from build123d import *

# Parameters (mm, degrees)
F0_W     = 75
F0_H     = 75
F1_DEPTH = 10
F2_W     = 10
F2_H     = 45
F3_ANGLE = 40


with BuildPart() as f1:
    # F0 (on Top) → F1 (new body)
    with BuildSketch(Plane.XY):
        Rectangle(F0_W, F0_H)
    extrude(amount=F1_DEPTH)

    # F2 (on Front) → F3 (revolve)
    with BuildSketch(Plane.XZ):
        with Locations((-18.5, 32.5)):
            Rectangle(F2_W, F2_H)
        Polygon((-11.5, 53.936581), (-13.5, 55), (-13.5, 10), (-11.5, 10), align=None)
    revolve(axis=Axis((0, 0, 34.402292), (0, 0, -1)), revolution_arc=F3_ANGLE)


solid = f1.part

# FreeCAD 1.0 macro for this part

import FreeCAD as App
import Part
import Sketcher
Q = App.Units.Quantity

doc = App.newDocument("Part")
params = doc.addObject("Spreadsheet::Sheet", "Params")
for row, (alias, value) in enumerate([
    ("sketch1_width", "75 mm"),
    ("pad1_length", "10 mm"),
    ("sketch2_width", "12 mm"),
    ("sketch2_width2", "10 mm"),
    ("sketch2_height", "45 mm"),
    ("revolution_angle", "40 deg"),
], start=1):
    params.set(f"A{row}", alias)
    params.set(f"B{row}", "=" + value)
    params.setAlias(f"B{row}", alias)

body = doc.addObject("PartDesign::Body", "Body")

# Sketch on XY plane
sketch1 = body.newObject("Sketcher::SketchObject", "Sketch")
sketch1.AttachmentSupport = (doc.getObject("XY_Plane"), [""])
sketch1.MapMode = "FlatFace"
sketch1.addGeometry([
    Part.LineSegment(App.Vector(-37.5, 37.5, 0), App.Vector(-37.5, -37.5, 0)),
    Part.LineSegment(App.Vector(-37.5, -37.5, 0), App.Vector(37.5, -37.5, 0)),
    Part.LineSegment(App.Vector(37.5, -37.5, 0), App.Vector(37.5, 37.5, 0)),
    Part.LineSegment(App.Vector(37.5, 37.5, 0), App.Vector(-37.5, 37.5, 0)),
], False)
sketch1.addConstraint([
    Sketcher.Constraint("Coincident", 0, 2, 1, 1),
    Sketcher.Constraint("Coincident", 1, 2, 2, 1),
    Sketcher.Constraint("Coincident", 2, 2, 3, 1),
    Sketcher.Constraint("Coincident", 3, 2, 0, 1),
    Sketcher.Constraint("Vertical", 0),
    Sketcher.Constraint("Horizontal", 1),
    Sketcher.Constraint("Vertical", 2),
    Sketcher.Constraint("Horizontal", 3),
    Sketcher.Constraint("Symmetric", 0, 2, 2, 2, -1, 1),
    Sketcher.Constraint("Equal", 3, 0),
    Sketcher.Constraint("DistanceX", 1, 1, 1, 2, Q("75 mm")),
])
sketch1.setExpression("Constraints[10]", "Params.sketch1_width")
pad1 = body.newObject("PartDesign::Pad", "Pad")
pad1.Profile = sketch1
pad1.setExpression("Length", "Params.pad1_length")

# Sketch on XZ plane
sketch2 = body.newObject("Sketcher::SketchObject", "Sketch001")
sketch2.AttachmentSupport = (doc.getObject("XZ_Plane"), [""])
sketch2.MapMode = "FlatFace"
sketch2.addGeometry([
    Part.LineSegment(App.Vector(-23.5, 55, 0), App.Vector(-23.5, 10, 0)),  # 0
    Part.LineSegment(App.Vector(-23.5, 10, 0), App.Vector(-11.5, 10, 0)),  # 1
    Part.LineSegment(App.Vector(-11.5, 10, 0), App.Vector(-11.5, 53.936581, 0)),  # 2
    Part.LineSegment(App.Vector(-11.5, 53.936581, 0), App.Vector(-13.5, 55, 0)),  # 3
    Part.LineSegment(App.Vector(-13.5, 55, 0), App.Vector(-23.5, 55, 0)),  # 4
], False)
sketch2.addConstraint([
    Sketcher.Constraint("Coincident", 0, 2, 1, 1),
    Sketcher.Constraint("Coincident", 1, 2, 2, 1),
    Sketcher.Constraint("Coincident", 2, 2, 3, 1),
    Sketcher.Constraint("Coincident", 3, 2, 4, 1),
    Sketcher.Constraint("Coincident", 4, 2, 0, 1),
    Sketcher.Constraint("Vertical", 0),
    Sketcher.Constraint("Horizontal", 1),
    Sketcher.Constraint("Vertical", 2),
    Sketcher.Constraint("Horizontal", 4),
    Sketcher.Constraint("DistanceX", 1, 1, 1, 2, Q("12 mm")),
    Sketcher.Constraint("DistanceX", 4, 2, 4, 1, Q("10 mm")),
    Sketcher.Constraint("DistanceY", 0, 2, 0, 1, Q("45 mm")),
    Sketcher.Constraint("Angle", 3, Q("151.999997 deg")),
    Sketcher.Constraint("DistanceY", -1, 1, 0, 2, Q("10 mm")),
    Sketcher.Constraint("DistanceX", 0, 2, -1, 1, Q("23.5 mm")),
])
sketch2.setExpression("Constraints[9]", "Params.sketch2_width")
sketch2.setExpression("Constraints[10]", "Params.sketch2_width2")
sketch2.setExpression("Constraints[11]", "Params.sketch2_height")
revolution = body.newObject("PartDesign::Revolution", "Revolution")
revolution.Profile = sketch2
revolution.ReferenceAxis = (sketch2, ["V_Axis"])
revolution.setExpression("Angle", "Params.revolution_angle")
revolution.Reversed = True

doc.recompute()
